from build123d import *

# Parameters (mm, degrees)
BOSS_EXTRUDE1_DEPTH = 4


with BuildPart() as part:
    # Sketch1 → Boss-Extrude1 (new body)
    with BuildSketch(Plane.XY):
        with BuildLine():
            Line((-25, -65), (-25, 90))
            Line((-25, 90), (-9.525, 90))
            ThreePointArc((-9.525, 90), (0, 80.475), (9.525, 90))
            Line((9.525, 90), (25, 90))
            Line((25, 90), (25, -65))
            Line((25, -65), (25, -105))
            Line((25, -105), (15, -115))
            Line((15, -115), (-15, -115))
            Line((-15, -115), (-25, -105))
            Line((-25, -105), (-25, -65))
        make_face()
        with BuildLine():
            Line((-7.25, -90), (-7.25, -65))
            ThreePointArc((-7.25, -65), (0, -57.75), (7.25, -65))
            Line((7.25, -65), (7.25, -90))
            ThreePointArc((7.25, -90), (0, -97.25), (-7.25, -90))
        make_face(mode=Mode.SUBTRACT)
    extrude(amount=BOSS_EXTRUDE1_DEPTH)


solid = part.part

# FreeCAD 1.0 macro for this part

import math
import FreeCAD as App
import Part
import Sketcher
from FreeCAD import Vector

doc = App.newDocument("Part")
body = doc.addObject("PartDesign::Body", "Body")

# Sketch on XY plane
sketch1 = body.newObject("Sketcher::SketchObject", "Sketch")
sketch1.AttachmentSupport = (doc.getObject("XY_Plane"), [""])
sketch1.MapMode = "FlatFace"
sketch1.addGeometry([
    Part.LineSegment(Vector(-10, 90, 0), Vector(-25, 90, 0)),  # 0
    Part.LineSegment(Vector(-25, 90, 0), Vector(-25, -105, 0)),  # 1
    Part.LineSegment(Vector(-25, -105, 0), Vector(-15, -115, 0)),  # 2
    Part.LineSegment(Vector(-15, -115, 0), Vector(15, -115, 0)),  # 3
    Part.LineSegment(Vector(15, -115, 0), Vector(25, -105, 0)),  # 4
    Part.LineSegment(Vector(25, -105, 0), Vector(25, 90, 0)),  # 5
    Part.LineSegment(Vector(25, 90, 0), Vector(10, 90, 0)),  # 6
    Part.ArcOfCircle(Part.Circle(Vector(0, 90, 0), Vector(0, 0, 1), 10), math.radians(180), math.radians(360)),  # 7
    Part.LineSegment(Vector(-7, -90, 0), Vector(-7, -65, 0)),  # 8
    Part.ArcOfCircle(Part.Circle(Vector(0, -65, 0), Vector(0, 0, 1), 7), math.radians(0), math.radians(180)),  # 9
    Part.LineSegment(Vector(7, -65, 0), Vector(7, -90, 0)),  # 10
    Part.ArcOfCircle(Part.Circle(Vector(0, -90, 0), Vector(0, 0, 1), 7), math.radians(180), math.radians(360)),  # 11
], False)
sketch1.addConstraint([
    Sketcher.Constraint("Coincident", 0, 2, 1, 1),
    Sketcher.Constraint("Coincident", 1, 2, 2, 1),
    Sketcher.Constraint("Coincident", 2, 2, 3, 1),
    Sketcher.Constraint("Coincident", 3, 2, 4, 1),
    Sketcher.Constraint("Coincident", 4, 2, 5, 1),
    Sketcher.Constraint("Coincident", 5, 2, 6, 1),
    Sketcher.Constraint("Coincident", 6, 2, 7, 2),
    Sketcher.Constraint("Coincident", 7, 1, 0, 1),
    Sketcher.Constraint("Tangent", 8, 2, 9, 2),
    Sketcher.Constraint("Tangent", 9, 1, 10, 1),
    Sketcher.Constraint("Tangent", 10, 2, 11, 2),
    Sketcher.Constraint("Tangent", 11, 1, 8, 1),
    Sketcher.Constraint("Horizontal", 0),
    Sketcher.Constraint("Vertical", 1),
    Sketcher.Constraint("Horizontal", 3),
    Sketcher.Constraint("Vertical", 5),
    Sketcher.Constraint("Horizontal", 6),
    Sketcher.Constraint("Vertical", 8),
    Sketcher.Constraint("Vertical", 10),
    Sketcher.Constraint("Symmetric", 7, 3, 11, 3, -1, 1),
    Sketcher.Constraint("Symmetric", 1, 2, 4, 2, -2),
    Sketcher.Constraint("Symmetric", 6, 2, 7, 1, -2),
    Sketcher.Constraint("Perpendicular", 2, 4),
    Sketcher.Constraint("Horizontal", 7, 3, 0, 2),
    Sketcher.Constraint("Equal", 2, 4),
    Sketcher.Constraint("DistanceX", 3, 1, 3, 2, 30.0),
    Sketcher.Constraint("DistanceY", 1, 2, 1, 1, 195.0),
    Sketcher.Constraint("DistanceY", 8, 1, 8, 2, 25.0),
    Sketcher.Constraint("Radius", 9, 7.25),
    Sketcher.Constraint("DistanceY", -1, 1, 7, 3, 90.0),
    Sketcher.Constraint("DistanceX", 0, 2, -1, 1, 25.0),
    Sketcher.Constraint("Radius", 7, 9.525),
])
pad1 = body.newObject("PartDesign::Pad", "Pad")
pad1.Profile = sketch1
pad1.Length = 4

doc.recompute()
